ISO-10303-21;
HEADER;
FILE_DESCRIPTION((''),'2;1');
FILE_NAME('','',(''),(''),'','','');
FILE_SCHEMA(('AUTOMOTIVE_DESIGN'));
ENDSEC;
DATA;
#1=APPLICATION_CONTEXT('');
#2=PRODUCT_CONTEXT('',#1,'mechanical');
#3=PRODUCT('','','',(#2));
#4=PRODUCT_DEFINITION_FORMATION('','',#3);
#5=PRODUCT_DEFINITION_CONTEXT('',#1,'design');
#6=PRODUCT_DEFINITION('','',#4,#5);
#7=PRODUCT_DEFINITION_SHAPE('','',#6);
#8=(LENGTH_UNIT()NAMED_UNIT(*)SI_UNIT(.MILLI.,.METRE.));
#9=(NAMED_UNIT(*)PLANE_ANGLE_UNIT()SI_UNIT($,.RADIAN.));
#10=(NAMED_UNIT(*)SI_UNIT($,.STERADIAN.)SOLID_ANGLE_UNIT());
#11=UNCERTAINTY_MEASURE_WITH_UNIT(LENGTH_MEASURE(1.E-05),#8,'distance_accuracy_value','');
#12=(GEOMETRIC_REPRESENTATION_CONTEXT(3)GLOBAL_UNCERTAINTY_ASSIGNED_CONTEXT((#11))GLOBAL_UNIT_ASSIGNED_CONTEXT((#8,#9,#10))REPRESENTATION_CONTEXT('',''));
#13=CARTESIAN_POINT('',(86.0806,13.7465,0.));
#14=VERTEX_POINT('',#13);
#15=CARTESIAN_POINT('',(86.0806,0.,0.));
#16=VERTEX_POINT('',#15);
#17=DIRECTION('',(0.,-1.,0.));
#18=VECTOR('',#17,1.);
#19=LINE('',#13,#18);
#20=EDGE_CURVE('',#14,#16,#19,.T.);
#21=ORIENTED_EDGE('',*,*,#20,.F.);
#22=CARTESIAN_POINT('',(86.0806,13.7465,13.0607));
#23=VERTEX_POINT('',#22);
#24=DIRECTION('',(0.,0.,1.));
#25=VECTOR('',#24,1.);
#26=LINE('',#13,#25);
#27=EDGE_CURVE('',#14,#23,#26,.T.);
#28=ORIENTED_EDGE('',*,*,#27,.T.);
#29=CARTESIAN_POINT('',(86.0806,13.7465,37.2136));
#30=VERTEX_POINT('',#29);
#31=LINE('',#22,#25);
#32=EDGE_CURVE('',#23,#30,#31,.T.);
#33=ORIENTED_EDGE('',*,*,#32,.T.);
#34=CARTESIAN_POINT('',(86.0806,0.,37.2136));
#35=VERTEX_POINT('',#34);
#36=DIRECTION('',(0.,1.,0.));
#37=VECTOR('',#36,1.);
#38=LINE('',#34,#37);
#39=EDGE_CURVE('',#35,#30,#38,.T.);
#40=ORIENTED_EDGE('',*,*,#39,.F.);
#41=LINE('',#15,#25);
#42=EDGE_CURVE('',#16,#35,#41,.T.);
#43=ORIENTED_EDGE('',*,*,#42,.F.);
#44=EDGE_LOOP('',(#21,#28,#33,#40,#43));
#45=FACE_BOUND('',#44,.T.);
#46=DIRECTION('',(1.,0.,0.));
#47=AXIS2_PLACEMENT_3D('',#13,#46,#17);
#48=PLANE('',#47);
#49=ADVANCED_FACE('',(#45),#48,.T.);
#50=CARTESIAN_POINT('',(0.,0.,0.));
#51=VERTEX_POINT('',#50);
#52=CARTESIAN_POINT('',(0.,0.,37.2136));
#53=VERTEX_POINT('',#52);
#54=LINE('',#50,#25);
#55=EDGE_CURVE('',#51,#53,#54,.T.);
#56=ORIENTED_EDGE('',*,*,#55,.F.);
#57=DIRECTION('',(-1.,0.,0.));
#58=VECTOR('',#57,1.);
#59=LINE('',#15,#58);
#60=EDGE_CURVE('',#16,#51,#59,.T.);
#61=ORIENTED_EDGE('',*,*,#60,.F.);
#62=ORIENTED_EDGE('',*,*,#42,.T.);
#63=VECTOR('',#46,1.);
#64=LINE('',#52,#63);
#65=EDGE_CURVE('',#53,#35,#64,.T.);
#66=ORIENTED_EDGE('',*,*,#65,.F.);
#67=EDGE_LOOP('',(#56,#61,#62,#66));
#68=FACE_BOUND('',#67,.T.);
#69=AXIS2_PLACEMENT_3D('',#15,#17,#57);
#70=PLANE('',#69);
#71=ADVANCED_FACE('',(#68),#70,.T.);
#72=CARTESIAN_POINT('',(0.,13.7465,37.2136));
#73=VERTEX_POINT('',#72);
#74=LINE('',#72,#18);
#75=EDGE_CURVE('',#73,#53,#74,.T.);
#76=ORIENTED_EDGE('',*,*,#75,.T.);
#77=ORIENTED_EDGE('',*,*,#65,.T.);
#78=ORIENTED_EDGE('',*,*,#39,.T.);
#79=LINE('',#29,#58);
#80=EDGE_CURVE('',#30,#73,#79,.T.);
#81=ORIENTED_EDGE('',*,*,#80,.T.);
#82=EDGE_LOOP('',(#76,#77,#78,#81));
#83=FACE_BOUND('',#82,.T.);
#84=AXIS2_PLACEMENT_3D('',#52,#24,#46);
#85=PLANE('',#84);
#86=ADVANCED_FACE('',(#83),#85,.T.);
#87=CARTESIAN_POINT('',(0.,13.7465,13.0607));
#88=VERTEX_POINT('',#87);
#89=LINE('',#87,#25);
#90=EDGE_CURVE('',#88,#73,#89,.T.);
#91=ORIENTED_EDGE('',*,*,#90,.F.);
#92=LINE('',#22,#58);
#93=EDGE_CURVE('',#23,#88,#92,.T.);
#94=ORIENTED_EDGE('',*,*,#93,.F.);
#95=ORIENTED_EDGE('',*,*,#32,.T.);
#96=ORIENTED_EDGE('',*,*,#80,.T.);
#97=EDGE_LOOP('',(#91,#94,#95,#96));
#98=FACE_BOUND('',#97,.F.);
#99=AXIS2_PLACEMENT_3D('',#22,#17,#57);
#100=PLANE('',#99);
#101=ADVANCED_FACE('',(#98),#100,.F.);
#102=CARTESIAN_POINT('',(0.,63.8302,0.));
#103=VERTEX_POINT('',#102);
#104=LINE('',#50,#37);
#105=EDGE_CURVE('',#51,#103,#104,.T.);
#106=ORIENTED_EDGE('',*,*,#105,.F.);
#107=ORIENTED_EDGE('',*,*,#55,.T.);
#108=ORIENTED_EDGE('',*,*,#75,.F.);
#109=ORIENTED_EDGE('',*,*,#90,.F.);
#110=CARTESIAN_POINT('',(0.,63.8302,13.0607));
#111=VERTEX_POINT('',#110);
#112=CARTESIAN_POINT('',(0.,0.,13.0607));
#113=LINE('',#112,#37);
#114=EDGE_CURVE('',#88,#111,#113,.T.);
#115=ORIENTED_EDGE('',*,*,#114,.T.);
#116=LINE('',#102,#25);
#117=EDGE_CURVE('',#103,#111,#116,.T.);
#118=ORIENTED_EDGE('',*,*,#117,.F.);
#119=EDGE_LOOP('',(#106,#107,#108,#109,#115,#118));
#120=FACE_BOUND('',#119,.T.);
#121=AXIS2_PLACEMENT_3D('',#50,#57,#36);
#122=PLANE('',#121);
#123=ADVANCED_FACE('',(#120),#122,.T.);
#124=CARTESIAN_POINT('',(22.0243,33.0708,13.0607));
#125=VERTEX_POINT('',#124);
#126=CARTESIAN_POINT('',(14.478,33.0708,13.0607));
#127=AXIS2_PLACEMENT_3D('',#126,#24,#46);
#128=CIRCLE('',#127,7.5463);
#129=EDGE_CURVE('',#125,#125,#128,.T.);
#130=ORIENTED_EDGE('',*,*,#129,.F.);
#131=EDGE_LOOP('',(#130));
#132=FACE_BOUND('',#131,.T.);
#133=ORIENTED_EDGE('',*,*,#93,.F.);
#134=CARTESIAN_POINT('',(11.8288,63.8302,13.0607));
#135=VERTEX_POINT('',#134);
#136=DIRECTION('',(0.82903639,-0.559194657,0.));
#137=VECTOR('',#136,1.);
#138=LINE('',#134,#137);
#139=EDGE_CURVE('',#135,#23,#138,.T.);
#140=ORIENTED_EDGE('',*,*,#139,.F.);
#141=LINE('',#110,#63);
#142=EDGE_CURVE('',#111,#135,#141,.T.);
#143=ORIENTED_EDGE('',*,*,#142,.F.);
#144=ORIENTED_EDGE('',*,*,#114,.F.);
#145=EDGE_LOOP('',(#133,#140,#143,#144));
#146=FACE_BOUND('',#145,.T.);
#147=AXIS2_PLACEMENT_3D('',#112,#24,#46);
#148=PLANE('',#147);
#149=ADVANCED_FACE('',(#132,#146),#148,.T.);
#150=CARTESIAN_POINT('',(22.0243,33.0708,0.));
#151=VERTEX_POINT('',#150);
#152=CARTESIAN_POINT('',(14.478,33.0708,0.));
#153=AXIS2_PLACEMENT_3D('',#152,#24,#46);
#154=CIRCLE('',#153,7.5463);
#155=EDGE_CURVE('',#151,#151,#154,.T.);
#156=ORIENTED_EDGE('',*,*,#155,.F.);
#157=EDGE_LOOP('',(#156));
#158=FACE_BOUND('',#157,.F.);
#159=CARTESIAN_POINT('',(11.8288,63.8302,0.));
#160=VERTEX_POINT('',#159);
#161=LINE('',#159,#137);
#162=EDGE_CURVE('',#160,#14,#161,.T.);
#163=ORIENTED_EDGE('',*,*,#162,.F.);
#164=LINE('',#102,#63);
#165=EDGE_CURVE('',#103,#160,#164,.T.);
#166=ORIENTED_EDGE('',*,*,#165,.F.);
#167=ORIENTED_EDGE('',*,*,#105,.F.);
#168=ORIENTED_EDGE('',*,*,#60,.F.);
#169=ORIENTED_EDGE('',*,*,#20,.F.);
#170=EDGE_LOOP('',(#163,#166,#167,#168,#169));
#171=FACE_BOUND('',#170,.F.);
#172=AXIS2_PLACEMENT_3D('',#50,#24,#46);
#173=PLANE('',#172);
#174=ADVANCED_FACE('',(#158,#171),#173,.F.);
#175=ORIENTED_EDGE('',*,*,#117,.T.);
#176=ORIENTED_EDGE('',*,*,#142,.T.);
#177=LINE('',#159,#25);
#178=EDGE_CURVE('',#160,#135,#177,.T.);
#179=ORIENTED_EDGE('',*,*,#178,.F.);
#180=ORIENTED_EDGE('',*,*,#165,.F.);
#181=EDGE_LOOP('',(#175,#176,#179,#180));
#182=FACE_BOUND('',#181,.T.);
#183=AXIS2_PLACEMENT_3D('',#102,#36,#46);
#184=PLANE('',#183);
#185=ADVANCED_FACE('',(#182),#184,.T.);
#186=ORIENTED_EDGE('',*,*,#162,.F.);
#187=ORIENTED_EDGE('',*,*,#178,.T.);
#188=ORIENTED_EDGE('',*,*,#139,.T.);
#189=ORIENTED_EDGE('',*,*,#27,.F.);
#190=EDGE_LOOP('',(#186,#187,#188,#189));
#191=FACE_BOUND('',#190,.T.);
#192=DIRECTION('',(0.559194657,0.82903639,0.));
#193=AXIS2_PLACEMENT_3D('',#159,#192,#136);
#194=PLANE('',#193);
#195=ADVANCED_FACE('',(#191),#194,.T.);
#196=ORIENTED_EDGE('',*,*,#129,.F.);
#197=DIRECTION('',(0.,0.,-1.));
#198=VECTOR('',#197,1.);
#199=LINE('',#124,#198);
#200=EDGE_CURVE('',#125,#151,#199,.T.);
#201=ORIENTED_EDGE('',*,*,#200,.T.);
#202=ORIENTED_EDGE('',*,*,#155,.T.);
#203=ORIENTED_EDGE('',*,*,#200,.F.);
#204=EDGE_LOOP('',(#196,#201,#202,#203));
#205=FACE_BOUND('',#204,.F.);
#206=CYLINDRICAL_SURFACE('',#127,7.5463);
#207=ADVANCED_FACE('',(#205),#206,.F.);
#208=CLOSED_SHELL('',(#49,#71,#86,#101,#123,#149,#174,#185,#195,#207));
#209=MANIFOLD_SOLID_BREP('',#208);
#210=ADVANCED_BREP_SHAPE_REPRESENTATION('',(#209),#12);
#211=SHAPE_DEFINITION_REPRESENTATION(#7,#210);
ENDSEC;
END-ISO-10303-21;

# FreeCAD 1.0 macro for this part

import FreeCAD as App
import Part
import Sketcher

V = App.Vector
Q = App.Units.Quantity


def add_polygon(sketch, points):
    """Adds a closed chain of lines whose ends are joined by coincident constraints."""
    first, n = sketch.GeometryCount, len(points)
    for a, b in zip(points, points[1:] + points[:1]):
        sketch.addGeometry(Part.LineSegment(App.Vector(*a, 0), App.Vector(*b, 0)), False)
    for i in range(n):
        sketch.addConstraint(Sketcher.Constraint("Coincident", first + i, 2, first + (i + 1) % n, 1))

doc = App.newDocument("Part")
body = doc.addObject("PartDesign::Body", "Body")

sketch1 = doc.addObject("Sketcher::SketchObject", "Sketch")
body.addObject(sketch1)
sketch1.AttachmentSupport = (doc.XY_Plane, [""])
sketch1.MapMode = "FlatFace"
add_polygon(sketch1, [(0, 63.8302), (0, 0), (86.0806, 0), (86.0806, 13.7465), (11.8288, 63.8302)])
sketch1.addConstraint([
    Sketcher.Constraint("Vertical", 0),
    Sketcher.Constraint("Horizontal", 1),
    Sketcher.Constraint("Vertical", 2),
    Sketcher.Constraint("Horizontal", 4),
    Sketcher.Constraint("Coincident", 0, 2, -1, 1),
    Sketcher.Constraint("DistanceX", 1, 1, 1, 2, Q("3.389 in")),
    Sketcher.Constraint("DistanceY", 0, 2, 0, 1, Q("2.513 in")),
    Sketcher.Constraint("DistanceX", 4, 2, 4, 1, Q("0.4657 in")),
    Sketcher.Constraint("DistanceY", 2, 1, 2, 2, Q("0.5412 in")),
])
pad1 = doc.addObject("PartDesign::Pad", "Pad")
body.addObject(pad1)
pad1.Profile = sketch1
pad1.Length = Q("0.5142008 in")

sketch2 = doc.addObject("Sketcher::SketchObject", "Sketch001")
body.addObject(sketch2)
sketch2.AttachmentSupport = (doc.XY_Plane, [""])
sketch2.MapMode = "FlatFace"
sketch2.AttachmentOffset = App.Placement(V(0, 0, 0.5142008 * 25.4), App.Rotation())
add_polygon(sketch2, [(0, 0), (86.0806, 0), (86.0806, 13.7465), (0, 13.7465)])
sketch2.addConstraint([
    Sketcher.Constraint("Horizontal", 0),
    Sketcher.Constraint("Vertical", 1),
    Sketcher.Constraint("Horizontal", 2),
    Sketcher.Constraint("Vertical", 3),
    Sketcher.Constraint("Coincident", 3, 2, -1, 1),
    Sketcher.Constraint("DistanceX", 0, 1, 0, 2, Q("3.389 in")),
    Sketcher.Constraint("DistanceY", 1, 1, 1, 2, Q("0.5412 in")),
])
pad2 = doc.addObject("PartDesign::Pad", "Pad001")
body.addObject(pad2)
pad2.Profile = sketch2
pad2.Length = Q("0.9509016 in")

sketch3 = doc.addObject("Sketcher::SketchObject", "Sketch002")
body.addObject(sketch3)
sketch3.AttachmentSupport = (doc.XY_Plane, [""])
sketch3.MapMode = "FlatFace"
sketch3.AttachmentOffset = App.Placement(V(0, 0, 0.5142008 * 25.4), App.Rotation())
sketch3.addGeometry(Part.Circle(V(14.478, 33.0708, 0), V(0, 0, 1), 7.5463), False)
sketch3.addConstraint([
    Sketcher.Constraint("Diameter", 0, Q("0.5942 in")),
    Sketcher.Constraint("DistanceX", -1, 1, 0, 3, Q("0.57 in")),
    Sketcher.Constraint("DistanceY", -1, 1, 0, 3, Q("1.302 in")),
])
pocket1 = doc.addObject("PartDesign::Pocket", "Pocket")
body.addObject(pocket1)
pocket1.Profile = sketch3
pocket1.Length = Q("0.9509016 in")

doc.recompute()
